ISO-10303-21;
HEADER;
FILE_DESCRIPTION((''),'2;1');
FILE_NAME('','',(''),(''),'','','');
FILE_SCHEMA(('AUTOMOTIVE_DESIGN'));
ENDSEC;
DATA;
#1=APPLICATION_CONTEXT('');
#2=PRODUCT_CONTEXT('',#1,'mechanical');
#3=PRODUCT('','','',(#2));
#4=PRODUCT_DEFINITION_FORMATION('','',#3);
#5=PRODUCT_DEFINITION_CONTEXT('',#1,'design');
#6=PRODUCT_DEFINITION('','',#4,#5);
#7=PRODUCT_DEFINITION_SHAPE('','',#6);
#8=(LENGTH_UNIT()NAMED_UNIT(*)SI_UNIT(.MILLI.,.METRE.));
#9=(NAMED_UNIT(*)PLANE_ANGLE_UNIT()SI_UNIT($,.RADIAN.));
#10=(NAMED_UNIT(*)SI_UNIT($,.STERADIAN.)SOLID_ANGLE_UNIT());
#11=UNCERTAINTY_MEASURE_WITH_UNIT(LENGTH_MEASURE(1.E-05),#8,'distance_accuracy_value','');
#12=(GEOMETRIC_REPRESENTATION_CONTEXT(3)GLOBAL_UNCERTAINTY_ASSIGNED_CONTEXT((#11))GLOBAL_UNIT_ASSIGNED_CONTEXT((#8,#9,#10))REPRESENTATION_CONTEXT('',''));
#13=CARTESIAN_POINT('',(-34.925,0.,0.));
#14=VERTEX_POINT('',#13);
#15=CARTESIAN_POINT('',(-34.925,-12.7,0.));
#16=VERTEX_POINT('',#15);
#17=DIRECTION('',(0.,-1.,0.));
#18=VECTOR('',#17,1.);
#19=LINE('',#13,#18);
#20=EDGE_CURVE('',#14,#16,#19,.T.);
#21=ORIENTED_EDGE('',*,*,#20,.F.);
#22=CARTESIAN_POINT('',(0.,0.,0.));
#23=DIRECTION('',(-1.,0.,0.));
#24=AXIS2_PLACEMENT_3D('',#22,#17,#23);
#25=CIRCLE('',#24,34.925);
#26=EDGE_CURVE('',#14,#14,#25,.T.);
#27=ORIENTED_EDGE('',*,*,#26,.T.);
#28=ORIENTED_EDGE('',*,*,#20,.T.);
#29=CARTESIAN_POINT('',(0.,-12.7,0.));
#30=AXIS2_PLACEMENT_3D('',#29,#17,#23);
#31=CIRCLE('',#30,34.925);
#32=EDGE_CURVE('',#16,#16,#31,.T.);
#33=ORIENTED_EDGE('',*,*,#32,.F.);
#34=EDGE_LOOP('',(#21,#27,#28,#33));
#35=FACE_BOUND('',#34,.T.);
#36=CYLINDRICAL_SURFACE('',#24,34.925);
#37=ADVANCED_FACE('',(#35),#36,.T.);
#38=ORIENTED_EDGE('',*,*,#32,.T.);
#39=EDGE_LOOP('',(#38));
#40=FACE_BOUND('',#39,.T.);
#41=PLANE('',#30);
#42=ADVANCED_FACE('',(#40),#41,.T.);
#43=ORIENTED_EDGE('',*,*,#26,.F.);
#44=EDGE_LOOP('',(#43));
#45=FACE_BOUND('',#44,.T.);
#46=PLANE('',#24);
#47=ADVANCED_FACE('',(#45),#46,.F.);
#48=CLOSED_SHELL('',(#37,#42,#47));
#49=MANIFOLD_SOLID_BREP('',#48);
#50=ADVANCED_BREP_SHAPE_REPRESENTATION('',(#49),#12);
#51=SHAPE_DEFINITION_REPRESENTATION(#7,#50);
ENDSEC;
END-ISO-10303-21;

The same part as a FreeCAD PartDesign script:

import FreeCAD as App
import Part
import Sketcher
from FreeCAD import Vector
Q = App.Units.Quantity


def add_polygon(sketch, points):
    """Adds a closed chain of lines whose ends are joined by coincident constraints."""
    first, n = sketch.GeometryCount, len(points)
    for a, b in zip(points, points[1:] + points[:1]):
        sketch.addGeometry(Part.LineSegment(App.Vector(*a, 0), App.Vector(*b, 0)), False)
    for i in range(n):
        sketch.addConstraint(Sketcher.Constraint("Coincident", first + i, 2, first + (i + 1) % n, 1))

doc = App.newDocument("Part")
params = doc.addObject("Spreadsheet::Sheet", "Params")
for row, (alias, value) in enumerate([
    ("sketch1_height", "0.5 in"),
    ("sketch1_width", "1.375 in"),
    ("revolution_angle", "360 deg"),
], start=1):
    params.set(f"A{row}", alias)
    params.set(f"B{row}", "=" + value)
    params.setAlias(f"B{row}", alias)

body = doc.addObject("PartDesign::Body", "Body")

sketch1 = body.newObject("Sketcher::SketchObject", "Sketch")
sketch1.AttachmentSupport = (doc.getObject("XY_Plane"), [""])
sketch1.MapMode = "FlatFace"
add_polygon(sketch1, [(-35, 0), (-35, -13), (0, -13), (0, 0)])
sketch1.addConstraint([
    Sketcher.Constraint("Vertical", 0),
    Sketcher.Constraint("Horizontal", 1),
    Sketcher.Constraint("Vertical", 2),
    Sketcher.Constraint("Horizontal", 3),
    Sketcher.Constraint("Coincident", 2, 2, -1, 1),
    Sketcher.Constraint("DistanceY", 0, 2, 0, 1, Q("0.5 in")),
    Sketcher.Constraint("DistanceX", 1, 1, 1, 2, Q("1.375 in")),
])
sketch1.setExpression("Constraints[9]", "Params.sketch1_height")
sketch1.setExpression("Constraints[10]", "Params.sketch1_width")
revolution = body.newObject("PartDesign::Revolution", "Revolution")
revolution.Profile = sketch1
revolution.ReferenceAxis = (sketch1, ["V_Axis"])
revolution.setExpression("Angle", "Params.revolution_angle")

doc.recompute()
